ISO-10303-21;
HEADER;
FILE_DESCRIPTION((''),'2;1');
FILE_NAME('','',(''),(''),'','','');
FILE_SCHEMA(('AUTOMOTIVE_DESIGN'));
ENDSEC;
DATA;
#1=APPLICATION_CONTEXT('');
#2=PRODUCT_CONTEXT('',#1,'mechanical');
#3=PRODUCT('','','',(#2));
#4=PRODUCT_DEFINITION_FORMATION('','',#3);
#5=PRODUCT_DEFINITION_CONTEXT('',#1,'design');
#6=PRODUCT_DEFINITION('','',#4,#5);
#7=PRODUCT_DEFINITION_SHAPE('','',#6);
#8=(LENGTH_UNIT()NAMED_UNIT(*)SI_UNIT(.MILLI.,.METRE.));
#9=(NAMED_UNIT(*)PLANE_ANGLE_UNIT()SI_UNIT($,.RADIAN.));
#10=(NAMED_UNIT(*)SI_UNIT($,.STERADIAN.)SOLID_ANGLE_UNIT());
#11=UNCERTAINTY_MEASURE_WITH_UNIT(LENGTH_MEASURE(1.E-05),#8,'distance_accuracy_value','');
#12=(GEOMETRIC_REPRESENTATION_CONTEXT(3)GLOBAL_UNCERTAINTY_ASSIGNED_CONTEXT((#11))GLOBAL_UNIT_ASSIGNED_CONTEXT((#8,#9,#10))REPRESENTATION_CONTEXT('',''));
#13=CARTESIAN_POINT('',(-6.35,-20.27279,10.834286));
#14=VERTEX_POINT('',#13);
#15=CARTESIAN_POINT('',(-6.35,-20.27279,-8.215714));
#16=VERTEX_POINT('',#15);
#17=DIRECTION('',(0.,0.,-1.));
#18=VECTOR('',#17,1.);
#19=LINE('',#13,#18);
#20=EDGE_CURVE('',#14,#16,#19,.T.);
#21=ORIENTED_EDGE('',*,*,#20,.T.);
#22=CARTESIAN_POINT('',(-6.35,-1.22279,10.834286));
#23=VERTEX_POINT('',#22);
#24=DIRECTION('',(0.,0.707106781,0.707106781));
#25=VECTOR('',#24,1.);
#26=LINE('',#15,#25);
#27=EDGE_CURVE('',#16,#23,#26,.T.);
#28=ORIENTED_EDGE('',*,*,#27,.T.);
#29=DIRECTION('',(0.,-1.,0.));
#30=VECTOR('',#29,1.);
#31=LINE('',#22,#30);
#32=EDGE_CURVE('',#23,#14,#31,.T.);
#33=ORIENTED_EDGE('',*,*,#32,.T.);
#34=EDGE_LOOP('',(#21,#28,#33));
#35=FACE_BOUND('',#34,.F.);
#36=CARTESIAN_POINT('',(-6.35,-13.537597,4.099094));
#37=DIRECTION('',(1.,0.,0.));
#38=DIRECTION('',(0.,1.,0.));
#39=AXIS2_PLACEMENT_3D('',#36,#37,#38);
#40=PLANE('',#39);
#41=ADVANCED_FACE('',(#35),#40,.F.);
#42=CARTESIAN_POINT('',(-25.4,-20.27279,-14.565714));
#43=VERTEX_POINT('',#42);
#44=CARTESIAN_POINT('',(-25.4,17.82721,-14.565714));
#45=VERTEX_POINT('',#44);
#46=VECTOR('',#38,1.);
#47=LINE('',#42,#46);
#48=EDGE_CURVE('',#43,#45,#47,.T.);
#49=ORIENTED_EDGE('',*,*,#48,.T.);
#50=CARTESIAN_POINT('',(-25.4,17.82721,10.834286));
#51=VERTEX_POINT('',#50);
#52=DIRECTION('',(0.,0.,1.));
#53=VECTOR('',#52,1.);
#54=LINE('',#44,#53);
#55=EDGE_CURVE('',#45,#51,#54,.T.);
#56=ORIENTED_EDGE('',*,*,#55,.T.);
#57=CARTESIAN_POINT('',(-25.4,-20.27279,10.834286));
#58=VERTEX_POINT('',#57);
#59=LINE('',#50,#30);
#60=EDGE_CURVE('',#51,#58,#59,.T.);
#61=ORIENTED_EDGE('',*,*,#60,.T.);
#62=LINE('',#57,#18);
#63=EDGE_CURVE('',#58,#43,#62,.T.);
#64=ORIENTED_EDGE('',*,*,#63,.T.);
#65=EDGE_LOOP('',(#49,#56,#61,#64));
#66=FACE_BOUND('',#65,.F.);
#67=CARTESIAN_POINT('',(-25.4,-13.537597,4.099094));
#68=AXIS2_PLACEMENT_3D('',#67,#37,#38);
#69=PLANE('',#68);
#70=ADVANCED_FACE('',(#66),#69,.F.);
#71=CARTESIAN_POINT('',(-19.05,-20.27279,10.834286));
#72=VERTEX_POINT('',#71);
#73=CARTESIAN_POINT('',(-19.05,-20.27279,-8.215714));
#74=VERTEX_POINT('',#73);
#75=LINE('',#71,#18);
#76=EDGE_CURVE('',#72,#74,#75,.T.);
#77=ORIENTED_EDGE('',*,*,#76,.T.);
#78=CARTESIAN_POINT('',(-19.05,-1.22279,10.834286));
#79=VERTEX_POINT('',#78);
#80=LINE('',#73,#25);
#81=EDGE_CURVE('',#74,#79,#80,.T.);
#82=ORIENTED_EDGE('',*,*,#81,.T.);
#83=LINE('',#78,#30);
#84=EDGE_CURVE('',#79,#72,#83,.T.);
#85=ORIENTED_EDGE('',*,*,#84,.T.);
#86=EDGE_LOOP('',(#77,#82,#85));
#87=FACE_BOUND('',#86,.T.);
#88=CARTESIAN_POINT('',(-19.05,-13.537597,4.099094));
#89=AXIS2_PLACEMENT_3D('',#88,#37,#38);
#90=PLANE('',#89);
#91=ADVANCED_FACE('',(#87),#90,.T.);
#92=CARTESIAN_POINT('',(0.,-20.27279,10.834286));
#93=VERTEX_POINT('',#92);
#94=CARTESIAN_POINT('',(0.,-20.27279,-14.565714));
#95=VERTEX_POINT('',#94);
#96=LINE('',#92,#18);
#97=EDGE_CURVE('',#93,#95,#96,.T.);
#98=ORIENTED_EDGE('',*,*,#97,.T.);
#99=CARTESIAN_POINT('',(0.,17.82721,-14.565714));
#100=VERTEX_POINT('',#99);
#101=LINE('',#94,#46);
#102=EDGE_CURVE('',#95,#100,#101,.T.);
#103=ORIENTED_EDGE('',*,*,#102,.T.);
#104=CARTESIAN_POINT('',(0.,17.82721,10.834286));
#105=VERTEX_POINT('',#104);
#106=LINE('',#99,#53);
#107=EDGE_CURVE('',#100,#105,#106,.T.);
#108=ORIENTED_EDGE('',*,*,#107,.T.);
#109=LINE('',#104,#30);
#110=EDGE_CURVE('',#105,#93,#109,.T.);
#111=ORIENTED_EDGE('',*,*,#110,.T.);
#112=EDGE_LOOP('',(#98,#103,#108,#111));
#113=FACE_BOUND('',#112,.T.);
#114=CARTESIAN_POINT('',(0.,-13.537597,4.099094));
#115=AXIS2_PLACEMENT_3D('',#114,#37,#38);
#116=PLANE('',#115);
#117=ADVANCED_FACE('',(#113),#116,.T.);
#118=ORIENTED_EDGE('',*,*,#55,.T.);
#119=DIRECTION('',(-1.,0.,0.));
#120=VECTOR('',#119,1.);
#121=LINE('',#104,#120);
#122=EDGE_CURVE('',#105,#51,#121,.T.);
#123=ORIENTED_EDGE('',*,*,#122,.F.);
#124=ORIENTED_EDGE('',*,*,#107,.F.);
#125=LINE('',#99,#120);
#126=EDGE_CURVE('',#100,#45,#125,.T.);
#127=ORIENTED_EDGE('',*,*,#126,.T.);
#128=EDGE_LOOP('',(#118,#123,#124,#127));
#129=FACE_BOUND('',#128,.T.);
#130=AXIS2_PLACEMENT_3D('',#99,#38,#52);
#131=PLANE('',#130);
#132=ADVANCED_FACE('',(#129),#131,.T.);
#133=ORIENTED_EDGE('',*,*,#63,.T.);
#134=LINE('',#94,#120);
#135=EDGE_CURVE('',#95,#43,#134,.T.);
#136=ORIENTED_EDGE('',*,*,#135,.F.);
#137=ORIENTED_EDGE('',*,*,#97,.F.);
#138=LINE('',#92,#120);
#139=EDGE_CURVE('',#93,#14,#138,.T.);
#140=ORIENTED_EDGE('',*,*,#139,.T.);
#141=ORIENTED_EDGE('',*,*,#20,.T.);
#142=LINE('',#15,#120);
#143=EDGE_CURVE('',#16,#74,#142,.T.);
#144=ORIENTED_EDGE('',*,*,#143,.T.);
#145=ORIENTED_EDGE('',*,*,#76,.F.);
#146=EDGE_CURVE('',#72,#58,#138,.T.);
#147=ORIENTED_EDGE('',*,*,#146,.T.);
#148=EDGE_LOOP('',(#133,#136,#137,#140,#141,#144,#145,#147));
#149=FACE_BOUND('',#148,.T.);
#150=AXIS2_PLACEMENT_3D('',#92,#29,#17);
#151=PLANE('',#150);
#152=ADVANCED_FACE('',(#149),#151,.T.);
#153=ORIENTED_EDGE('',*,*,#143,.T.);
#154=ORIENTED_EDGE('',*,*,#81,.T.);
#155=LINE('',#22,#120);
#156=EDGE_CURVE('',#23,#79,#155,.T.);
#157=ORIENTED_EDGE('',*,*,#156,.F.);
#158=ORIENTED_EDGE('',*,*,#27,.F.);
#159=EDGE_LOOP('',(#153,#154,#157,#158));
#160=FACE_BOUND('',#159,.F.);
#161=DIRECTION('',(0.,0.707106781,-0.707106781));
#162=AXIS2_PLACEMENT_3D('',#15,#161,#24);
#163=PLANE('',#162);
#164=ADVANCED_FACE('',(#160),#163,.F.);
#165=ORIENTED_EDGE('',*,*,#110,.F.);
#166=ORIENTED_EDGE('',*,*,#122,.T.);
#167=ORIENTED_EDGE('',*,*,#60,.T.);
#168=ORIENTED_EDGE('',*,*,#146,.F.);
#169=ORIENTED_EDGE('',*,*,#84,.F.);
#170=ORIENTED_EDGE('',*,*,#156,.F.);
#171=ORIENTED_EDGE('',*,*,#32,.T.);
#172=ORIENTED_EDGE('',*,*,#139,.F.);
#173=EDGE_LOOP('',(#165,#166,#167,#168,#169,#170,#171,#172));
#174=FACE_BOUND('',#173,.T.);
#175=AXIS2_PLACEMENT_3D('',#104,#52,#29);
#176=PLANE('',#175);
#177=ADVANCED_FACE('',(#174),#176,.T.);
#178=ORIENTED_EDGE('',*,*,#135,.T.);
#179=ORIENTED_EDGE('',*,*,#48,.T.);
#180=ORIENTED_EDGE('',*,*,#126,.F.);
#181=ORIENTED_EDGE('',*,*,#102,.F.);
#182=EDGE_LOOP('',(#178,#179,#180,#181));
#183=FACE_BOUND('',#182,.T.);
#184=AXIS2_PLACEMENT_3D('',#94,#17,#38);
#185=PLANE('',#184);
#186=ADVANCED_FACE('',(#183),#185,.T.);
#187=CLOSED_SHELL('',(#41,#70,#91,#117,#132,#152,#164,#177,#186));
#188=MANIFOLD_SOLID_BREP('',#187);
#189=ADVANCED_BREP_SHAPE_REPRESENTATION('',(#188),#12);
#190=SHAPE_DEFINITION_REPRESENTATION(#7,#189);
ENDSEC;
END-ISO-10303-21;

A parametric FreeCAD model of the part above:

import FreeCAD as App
import Part
import Sketcher
Q = App.Units.Quantity

doc = App.newDocument("Part")
body = doc.addObject("PartDesign::Body", "Body")

sketch1 = body.newObject("Sketcher::SketchObject", "Sketch")
sketch1.AttachmentSupport = (doc.getObject("YZ_Plane"), [""])
sketch1.MapMode = "FlatFace"
sketch1.addGeometry(Part.LineSegment(App.Vector(-20.27279, 10.834286, 0), App.Vector(-20.27279, -14.565714, 0)), False)
sketch1.addGeometry(Part.LineSegment(App.Vector(-20.27279, -14.565714, 0), App.Vector(17.82721, -14.565714, 0)), False)
sketch1.addGeometry(Part.LineSegment(App.Vector(17.82721, -14.565714, 0), App.Vector(17.82721, 10.834286, 0)), False)
sketch1.addGeometry(Part.LineSegment(App.Vector(17.82721, 10.834286, 0), App.Vector(-20.27279, 10.834286, 0)), False)
sketch1.addConstraint(Sketcher.Constraint("Coincident", 0, 2, 1, 1))
sketch1.addConstraint(Sketcher.Constraint("Coincident", 1, 2, 2, 1))
sketch1.addConstraint(Sketcher.Constraint("Coincident", 2, 2, 3, 1))
sketch1.addConstraint(Sketcher.Constraint("Coincident", 3, 2, 0, 1))
sketch1.addConstraint(Sketcher.Constraint("Vertical", 0))
sketch1.addConstraint(Sketcher.Constraint("Horizontal", 1))
sketch1.addConstraint(Sketcher.Constraint("Vertical", 2))
sketch1.addConstraint(Sketcher.Constraint("Horizontal", 3))
sketch1.addConstraint(Sketcher.Constraint("DistanceY", 0, 2, 0, 1, Q("1 in")))
sketch1.addConstraint(Sketcher.Constraint("DistanceX", 1, 1, 1, 2, Q("1.5 in")))
sketch1.addConstraint(Sketcher.Constraint("DistanceX", 0, 2, -1, 1, Q("20.27279 mm")))
sketch1.addConstraint(Sketcher.Constraint("DistanceY", 0, 2, -1, 1, Q("14.565714 mm")))
pad1 = body.newObject("PartDesign::Pad", "Pad")
pad1.Profile = sketch1
pad1.Length = Q("1 in")
pad1.Reversed = True

sketch2 = body.newObject("Sketcher::SketchObject", "Sketch001")
sketch2.AttachmentSupport = (doc.getObject("YZ_Plane"), [""])
sketch2.MapMode = "FlatFace"
sketch2.AttachmentOffset = App.Placement(App.Vector(0, 0, -0.25 * 25.4), App.Rotation())
sketch2.addGeometry(Part.LineSegment(App.Vector(-1.22279, 10.834286, 0), App.Vector(-20.27279, 10.834286, 0)), False)
sketch2.addGeometry(Part.LineSegment(App.Vector(-20.27279, 10.834286, 0), App.Vector(-20.27279, -8.215714, 0)), False)
sketch2.addGeometry(Part.LineSegment(App.Vector(-20.27279, -8.215714, 0), App.Vector(-1.22279, 10.834286, 0)), False)
sketch2.addConstraint(Sketcher.Constraint("Coincident", 0, 2, 1, 1))
sketch2.addConstraint(Sketcher.Constraint("Coincident", 1, 2, 2, 1))
sketch2.addConstraint(Sketcher.Constraint("Coincident", 2, 2, 0, 1))
sketch2.addConstraint(Sketcher.Constraint("Horizontal", 0))
sketch2.addConstraint(Sketcher.Constraint("Vertical", 1))
sketch2.addConstraint(Sketcher.Constraint("Equal", 0, 1))
sketch2.addConstraint(Sketcher.Constraint("DistanceX", 0, 2, 0, 1, Q("0.75 in")))
sketch2.addConstraint(Sketcher.Constraint("DistanceX", 0, 2, -1, 1, Q("20.27279 mm")))
sketch2.addConstraint(Sketcher.Constraint("DistanceY", -1, 1, 0, 2, Q("10.834286 mm")))
pocket1 = body.newObject("PartDesign::Pocket", "Pocket")
pocket1.Profile = sketch2
pocket1.Length = Q("0.5 in")

doc.recompute()
